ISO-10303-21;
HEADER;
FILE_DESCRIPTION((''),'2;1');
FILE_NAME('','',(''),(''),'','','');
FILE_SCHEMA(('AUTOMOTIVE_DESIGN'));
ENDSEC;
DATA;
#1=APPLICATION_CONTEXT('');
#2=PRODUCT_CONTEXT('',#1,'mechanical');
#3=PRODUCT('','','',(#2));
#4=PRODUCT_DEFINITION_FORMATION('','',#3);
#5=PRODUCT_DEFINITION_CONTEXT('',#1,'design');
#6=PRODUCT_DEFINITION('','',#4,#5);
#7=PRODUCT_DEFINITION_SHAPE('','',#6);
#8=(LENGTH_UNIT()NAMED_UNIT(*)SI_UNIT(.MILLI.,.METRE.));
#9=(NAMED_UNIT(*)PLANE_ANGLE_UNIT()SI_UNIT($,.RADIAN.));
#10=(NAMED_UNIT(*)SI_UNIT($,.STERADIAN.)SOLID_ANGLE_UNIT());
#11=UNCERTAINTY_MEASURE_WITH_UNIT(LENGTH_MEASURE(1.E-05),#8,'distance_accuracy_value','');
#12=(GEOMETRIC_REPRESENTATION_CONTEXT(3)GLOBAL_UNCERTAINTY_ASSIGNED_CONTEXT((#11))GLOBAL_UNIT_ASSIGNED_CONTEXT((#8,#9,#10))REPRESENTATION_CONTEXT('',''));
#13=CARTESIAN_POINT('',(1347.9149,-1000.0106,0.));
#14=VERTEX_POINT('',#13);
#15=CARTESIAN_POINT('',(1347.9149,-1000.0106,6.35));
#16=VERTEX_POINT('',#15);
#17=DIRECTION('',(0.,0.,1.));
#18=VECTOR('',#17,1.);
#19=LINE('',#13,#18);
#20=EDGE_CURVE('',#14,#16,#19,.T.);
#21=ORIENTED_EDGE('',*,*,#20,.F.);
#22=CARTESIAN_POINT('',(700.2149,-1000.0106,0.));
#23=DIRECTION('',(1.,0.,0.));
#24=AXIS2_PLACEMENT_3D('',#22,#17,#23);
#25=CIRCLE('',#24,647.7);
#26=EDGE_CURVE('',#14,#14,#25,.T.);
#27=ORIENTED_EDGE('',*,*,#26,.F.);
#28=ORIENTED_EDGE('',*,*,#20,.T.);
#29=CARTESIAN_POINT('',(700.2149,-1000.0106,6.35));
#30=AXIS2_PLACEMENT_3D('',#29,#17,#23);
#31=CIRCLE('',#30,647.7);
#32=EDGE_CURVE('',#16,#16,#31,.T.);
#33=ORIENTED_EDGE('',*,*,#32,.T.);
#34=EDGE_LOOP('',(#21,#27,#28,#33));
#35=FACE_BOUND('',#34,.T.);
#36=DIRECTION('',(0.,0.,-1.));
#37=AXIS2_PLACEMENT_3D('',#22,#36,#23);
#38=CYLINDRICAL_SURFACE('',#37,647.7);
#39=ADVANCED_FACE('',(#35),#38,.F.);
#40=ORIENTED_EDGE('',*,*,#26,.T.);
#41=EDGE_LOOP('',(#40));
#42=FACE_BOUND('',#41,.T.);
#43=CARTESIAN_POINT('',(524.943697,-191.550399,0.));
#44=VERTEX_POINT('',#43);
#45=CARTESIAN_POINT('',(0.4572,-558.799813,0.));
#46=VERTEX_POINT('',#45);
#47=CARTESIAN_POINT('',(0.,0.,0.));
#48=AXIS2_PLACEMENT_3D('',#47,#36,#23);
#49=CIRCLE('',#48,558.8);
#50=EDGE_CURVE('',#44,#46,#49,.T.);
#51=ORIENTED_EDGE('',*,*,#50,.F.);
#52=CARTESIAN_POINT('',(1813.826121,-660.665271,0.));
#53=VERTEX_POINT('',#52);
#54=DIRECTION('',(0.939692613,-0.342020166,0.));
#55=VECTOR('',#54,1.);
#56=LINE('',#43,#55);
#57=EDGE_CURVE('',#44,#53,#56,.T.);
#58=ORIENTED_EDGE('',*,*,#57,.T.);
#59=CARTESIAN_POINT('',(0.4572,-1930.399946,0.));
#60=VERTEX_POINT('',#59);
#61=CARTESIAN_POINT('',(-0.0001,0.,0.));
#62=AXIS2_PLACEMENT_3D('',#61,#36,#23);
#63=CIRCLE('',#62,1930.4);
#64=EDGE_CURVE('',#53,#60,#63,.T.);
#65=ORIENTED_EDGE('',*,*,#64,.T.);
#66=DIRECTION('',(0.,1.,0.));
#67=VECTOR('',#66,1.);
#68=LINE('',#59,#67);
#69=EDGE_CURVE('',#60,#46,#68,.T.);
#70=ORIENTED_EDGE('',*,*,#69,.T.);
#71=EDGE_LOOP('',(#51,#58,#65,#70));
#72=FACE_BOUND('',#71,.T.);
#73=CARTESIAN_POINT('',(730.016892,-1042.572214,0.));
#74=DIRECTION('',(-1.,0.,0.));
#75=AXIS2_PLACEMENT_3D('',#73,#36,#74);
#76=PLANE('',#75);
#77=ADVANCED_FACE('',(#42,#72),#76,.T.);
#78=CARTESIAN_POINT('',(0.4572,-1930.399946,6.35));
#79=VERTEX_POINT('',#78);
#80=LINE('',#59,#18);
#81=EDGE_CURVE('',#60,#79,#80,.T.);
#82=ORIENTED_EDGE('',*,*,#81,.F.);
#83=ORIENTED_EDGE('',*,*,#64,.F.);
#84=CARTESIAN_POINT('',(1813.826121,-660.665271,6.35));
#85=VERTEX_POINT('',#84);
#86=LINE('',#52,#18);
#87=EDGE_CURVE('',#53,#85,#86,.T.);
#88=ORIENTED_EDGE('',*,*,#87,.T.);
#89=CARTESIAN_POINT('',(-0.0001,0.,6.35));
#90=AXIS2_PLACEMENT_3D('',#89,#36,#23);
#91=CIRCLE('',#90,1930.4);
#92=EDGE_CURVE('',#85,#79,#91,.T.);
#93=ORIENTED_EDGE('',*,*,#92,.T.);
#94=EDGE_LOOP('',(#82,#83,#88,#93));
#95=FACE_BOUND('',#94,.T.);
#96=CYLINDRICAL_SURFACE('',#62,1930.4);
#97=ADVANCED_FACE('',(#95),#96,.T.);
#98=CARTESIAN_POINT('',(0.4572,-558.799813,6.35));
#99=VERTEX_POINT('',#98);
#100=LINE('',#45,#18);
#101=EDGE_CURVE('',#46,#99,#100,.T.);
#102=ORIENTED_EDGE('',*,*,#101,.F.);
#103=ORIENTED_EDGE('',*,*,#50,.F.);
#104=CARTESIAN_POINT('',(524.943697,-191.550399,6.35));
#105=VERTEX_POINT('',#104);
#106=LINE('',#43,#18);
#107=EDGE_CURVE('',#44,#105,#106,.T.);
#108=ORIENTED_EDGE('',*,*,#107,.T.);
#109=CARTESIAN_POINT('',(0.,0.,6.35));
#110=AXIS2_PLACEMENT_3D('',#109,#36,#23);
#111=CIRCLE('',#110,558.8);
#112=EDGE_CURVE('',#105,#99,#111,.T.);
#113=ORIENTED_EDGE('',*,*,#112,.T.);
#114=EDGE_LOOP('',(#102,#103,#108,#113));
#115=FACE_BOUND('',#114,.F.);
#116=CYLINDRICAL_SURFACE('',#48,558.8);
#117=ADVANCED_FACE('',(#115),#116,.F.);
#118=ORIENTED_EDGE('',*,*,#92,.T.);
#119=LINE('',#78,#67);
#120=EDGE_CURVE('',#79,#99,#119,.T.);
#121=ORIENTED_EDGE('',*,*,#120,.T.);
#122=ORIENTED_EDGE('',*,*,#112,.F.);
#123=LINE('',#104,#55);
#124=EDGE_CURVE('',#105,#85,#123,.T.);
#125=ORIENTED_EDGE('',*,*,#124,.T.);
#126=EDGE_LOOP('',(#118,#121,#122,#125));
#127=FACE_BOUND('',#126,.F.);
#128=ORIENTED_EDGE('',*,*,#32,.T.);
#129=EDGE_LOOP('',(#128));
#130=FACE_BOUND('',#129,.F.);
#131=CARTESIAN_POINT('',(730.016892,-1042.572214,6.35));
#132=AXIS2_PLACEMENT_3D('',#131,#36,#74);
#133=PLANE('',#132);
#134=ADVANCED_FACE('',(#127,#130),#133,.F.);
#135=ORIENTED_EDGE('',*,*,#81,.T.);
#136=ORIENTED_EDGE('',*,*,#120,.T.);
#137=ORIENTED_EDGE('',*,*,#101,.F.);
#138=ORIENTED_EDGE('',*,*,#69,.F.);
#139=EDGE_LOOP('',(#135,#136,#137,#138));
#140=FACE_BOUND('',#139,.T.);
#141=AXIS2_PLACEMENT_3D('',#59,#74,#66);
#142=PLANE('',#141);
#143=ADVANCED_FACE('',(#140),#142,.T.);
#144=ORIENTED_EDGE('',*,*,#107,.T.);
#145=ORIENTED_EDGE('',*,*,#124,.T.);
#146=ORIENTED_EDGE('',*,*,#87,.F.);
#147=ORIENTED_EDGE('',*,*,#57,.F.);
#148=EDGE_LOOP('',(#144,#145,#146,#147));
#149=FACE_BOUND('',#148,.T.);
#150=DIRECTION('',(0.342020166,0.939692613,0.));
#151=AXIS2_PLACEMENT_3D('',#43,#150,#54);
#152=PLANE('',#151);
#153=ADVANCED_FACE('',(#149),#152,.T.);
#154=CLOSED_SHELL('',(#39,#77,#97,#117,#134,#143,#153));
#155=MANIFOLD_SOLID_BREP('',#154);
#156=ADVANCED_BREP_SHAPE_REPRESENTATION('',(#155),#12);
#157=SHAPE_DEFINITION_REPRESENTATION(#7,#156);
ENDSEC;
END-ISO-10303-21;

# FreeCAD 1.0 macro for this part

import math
import FreeCAD as App
import Part
import Sketcher
Q = App.Units.Quantity

doc = App.newDocument("Part")
params = doc.addObject("Spreadsheet::Sheet", "Params")
for row, (alias, value) in enumerate([
    ("sketch1_diameter", "51 in"),
    ("sketch1_radius", "22 in"),
    ("sketch1_radius2", "76 in"),
    ("pad1_length", "0.25 in"),
], start=1):
    params.set(f"A{row}", alias)
    params.set(f"B{row}", "=" + value)
    params.setAlias(f"B{row}", alias)

body = doc.addObject("PartDesign::Body", "Body")

# Sketch on XY plane
sketch1 = body.newObject("Sketcher::SketchObject", "Sketch")
sketch1.AttachmentSupport = (doc.getObject("XY_Plane"), [""])
sketch1.MapMode = "FlatFace"
sketch1.addGeometry([
    Part.LineSegment(App.Vector(1814, -661, 0), App.Vector(525, -192, 0)),  # 0
    Part.ArcOfCircle(Part.Circle(App.Vector(0, 0, 0), App.Vector(0, 0, 1), 559), math.radians(-90), math.radians(-20)),  # 1
    Part.LineSegment(App.Vector(0, -559, 0), App.Vector(0, -1930, 0)),  # 2
    Part.ArcOfCircle(Part.Circle(App.Vector(0, 0, 0), App.Vector(0, 0, 1), 1930), math.radians(-90), math.radians(-20)),  # 3
    Part.Circle(App.Vector(700, -1000, 0), App.Vector(0, 0, 1), 648),  # 4
], False)
sketch1.addConstraint([
    Sketcher.Constraint("Coincident", 0, 2, 1, 2),
    Sketcher.Constraint("Coincident", 1, 1, 2, 1),
    Sketcher.Constraint("Coincident", 2, 2, 3, 1),
    Sketcher.Constraint("Coincident", 3, 2, 0, 1),
    Sketcher.Constraint("Vertical", 2),
    Sketcher.Constraint("Coincident", 1, 3, -1, 1),
    Sketcher.Constraint("Coincident", 3, 3, -1, 1),
    Sketcher.Constraint("Diameter", 4, Q("51 in")),
    Sketcher.Constraint("Radius", 1, Q("22 in")),
    Sketcher.Constraint("Radius", 3, Q("76 in")),
    Sketcher.Constraint("Angle", 0, Q("160 deg")),
    Sketcher.Constraint("DistanceX", -1, 1, 2, 2, Q("0.018 in")),
    Sketcher.Constraint("DistanceY", 4, 3, -1, 1, Q("39.3705 in")),
    Sketcher.Constraint("DistanceX", -1, 1, 4, 3, 700.215),
    Sketcher.Constraint("DistanceX", -1, 1, 0, 2, 524.9437),
])
sketch1.setExpression("Constraints[7]", "Params.sketch1_diameter")
sketch1.setExpression("Constraints[8]", "Params.sketch1_radius")
sketch1.setExpression("Constraints[9]", "Params.sketch1_radius2")
pad1 = body.newObject("PartDesign::Pad", "Pad")
pad1.Profile = sketch1
pad1.setExpression("Length", "Params.pad1_length")

doc.recompute()
